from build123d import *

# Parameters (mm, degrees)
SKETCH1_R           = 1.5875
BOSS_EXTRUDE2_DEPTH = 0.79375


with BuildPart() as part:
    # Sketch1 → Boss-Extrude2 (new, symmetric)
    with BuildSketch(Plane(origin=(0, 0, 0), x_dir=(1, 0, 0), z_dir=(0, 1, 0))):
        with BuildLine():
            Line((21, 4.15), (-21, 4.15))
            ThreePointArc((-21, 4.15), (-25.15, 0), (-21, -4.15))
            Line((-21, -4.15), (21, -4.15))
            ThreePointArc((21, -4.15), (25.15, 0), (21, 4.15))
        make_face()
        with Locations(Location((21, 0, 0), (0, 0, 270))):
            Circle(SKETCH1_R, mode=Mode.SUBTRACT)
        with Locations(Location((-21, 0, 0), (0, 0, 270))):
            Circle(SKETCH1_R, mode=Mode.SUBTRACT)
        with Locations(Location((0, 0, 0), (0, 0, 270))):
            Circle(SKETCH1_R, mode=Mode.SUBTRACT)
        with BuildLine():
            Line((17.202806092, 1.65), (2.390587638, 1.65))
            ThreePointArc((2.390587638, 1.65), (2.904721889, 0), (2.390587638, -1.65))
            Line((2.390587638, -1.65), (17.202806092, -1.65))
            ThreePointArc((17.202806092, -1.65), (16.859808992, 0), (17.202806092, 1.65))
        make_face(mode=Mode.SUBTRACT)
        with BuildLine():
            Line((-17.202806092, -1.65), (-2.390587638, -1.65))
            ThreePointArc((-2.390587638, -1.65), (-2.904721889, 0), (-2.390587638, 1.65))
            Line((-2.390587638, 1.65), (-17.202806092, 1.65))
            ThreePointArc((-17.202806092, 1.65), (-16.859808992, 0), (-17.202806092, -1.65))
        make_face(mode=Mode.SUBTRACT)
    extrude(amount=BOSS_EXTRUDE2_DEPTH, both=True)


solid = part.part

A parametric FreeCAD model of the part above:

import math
import FreeCAD as App
import Part
import Sketcher
from FreeCAD import Vector

doc = App.newDocument("Part")
body = doc.addObject("PartDesign::Body", "Body")

# Sketch on XZ plane
sketch1 = body.newObject("Sketcher::SketchObject", "Sketch")
sketch1.AttachmentSupport = (doc.getObject("XZ_Plane"), [""])
sketch1.MapMode = "FlatFace"
sketch1.addGeometry([
    Part.LineSegment(Vector(21, -4.15, 0), Vector(-21, -4.15, 0)),  # 0
    Part.ArcOfCircle(Part.Circle(Vector(-21, 0, 0), Vector(0, 0, 1), 4.15), math.radians(90), math.radians(270)),  # 1
    Part.LineSegment(Vector(-21, 4.15, 0), Vector(21, 4.15, 0)),  # 2
    Part.ArcOfCircle(Part.Circle(Vector(21, 0, 0), Vector(0, 0, 1), 4.15), math.radians(-90), math.radians(90)),  # 3
    Part.LineSegment(Vector(2.390588, -1.65, 0), Vector(17.202806, -1.65, 0)),  # 4
    Part.ArcOfCircle(Part.Circle(Vector(21, 0, 0), Vector(0, 0, 1), 4.140191), math.radians(156.51354), math.radians(203.48646)),  # 5
    Part.LineSegment(Vector(17.202806, 1.65, 0), Vector(2.390588, 1.65, 0)),  # 6
    Part.ArcOfCircle(Part.Circle(Vector(0, 0, 0), Vector(0, 0, 1), 2.904722), math.radians(-34.613704), math.radians(34.613704)),  # 7
    Part.Circle(Vector(-21, 0, 0), Vector(0, 0, 1), 1.5875),  # 8
    Part.LineSegment(Vector(-2.390588, 1.65, 0), Vector(-17.202806, 1.65, 0)),  # 9
    Part.ArcOfCircle(Part.Circle(Vector(-21, 0, 0), Vector(0, 0, 1), 4.140191), math.radians(-23.48646), math.radians(23.48646)),  # 10
    Part.LineSegment(Vector(-17.202806, -1.65, 0), Vector(-2.390588, -1.65, 0)),  # 11
    Part.ArcOfCircle(Part.Circle(Vector(0, 0, 0), Vector(0, 0, 1), 2.904722), math.radians(145.386296), math.radians(214.613704)),  # 12
    Part.Circle(Vector(0, 0, 0), Vector(0, 0, 1), 1.5875),  # 13
    Part.Circle(Vector(21, 0, 0), Vector(0, 0, 1), 1.5875),  # 14
], False)
sketch1.addConstraint([
    Sketcher.Constraint("Tangent", 0, 2, 1, 2),
    Sketcher.Constraint("Tangent", 1, 1, 2, 1),
    Sketcher.Constraint("Tangent", 2, 2, 3, 2),
    Sketcher.Constraint("Tangent", 3, 1, 0, 1),
    Sketcher.Constraint("Coincident", 4, 2, 5, 2),
    Sketcher.Constraint("Coincident", 5, 1, 6, 1),
    Sketcher.Constraint("Coincident", 6, 2, 7, 2),
    Sketcher.Constraint("Coincident", 7, 1, 4, 1),
    Sketcher.Constraint("Coincident", 9, 2, 10, 2),
    Sketcher.Constraint("Coincident", 10, 1, 11, 1),
    Sketcher.Constraint("Coincident", 11, 2, 12, 2),
    Sketcher.Constraint("Coincident", 12, 1, 9, 1),
    Sketcher.Constraint("Horizontal", 0),
    Sketcher.Constraint("Horizontal", 2),
    Sketcher.Constraint("Horizontal", 4),
    Sketcher.Constraint("Horizontal", 6),
    Sketcher.Constraint("Horizontal", 9),
    Sketcher.Constraint("Horizontal", 11),
    Sketcher.Constraint("Coincident", 7, 3, -1, 1),
    Sketcher.Constraint("Coincident", 12, 3, -1, 1),
    Sketcher.Constraint("Coincident", 13, 3, -1, 1),
    Sketcher.Constraint("Coincident", 5, 3, 3, 3),
    Sketcher.Constraint("Coincident", 8, 3, 1, 3),
    Sketcher.Constraint("Coincident", 10, 3, 1, 3),
    Sketcher.Constraint("Coincident", 14, 3, 3, 3),
    Sketcher.Constraint("Equal", 5, 10),
    Sketcher.Constraint("Equal", 7, 12),
    Sketcher.Constraint("Equal", 8, 13),
    Sketcher.Constraint("Equal", 13, 14),
    Sketcher.Constraint("Symmetric", 1, 3, 3, 3, -1, 1),
    Sketcher.Constraint("Horizontal", 6, 2, 9, 2),
    Sketcher.Constraint("Horizontal", 7, 1, 10, 1),
    Sketcher.Constraint("Vertical", 4, 2, 5, 1),
    Sketcher.Constraint("DistanceX", 0, 2, 0, 1, 42.0),
    Sketcher.Constraint("Radius", 1, 4.15),
    Sketcher.Constraint("Diameter", 8, 3.175),
    Sketcher.Constraint("DistanceY", 3, 1, 4, 2, 2.5),
    Sketcher.Constraint("Radius", 5, 4.140191),
    Sketcher.Constraint("Radius", 7, 2.904722),
])
pad1 = body.newObject("PartDesign::Pad", "Pad")
pad1.Profile = sketch1
pad1.Length = 1.5875
pad1.Midplane = True

doc.recompute()
